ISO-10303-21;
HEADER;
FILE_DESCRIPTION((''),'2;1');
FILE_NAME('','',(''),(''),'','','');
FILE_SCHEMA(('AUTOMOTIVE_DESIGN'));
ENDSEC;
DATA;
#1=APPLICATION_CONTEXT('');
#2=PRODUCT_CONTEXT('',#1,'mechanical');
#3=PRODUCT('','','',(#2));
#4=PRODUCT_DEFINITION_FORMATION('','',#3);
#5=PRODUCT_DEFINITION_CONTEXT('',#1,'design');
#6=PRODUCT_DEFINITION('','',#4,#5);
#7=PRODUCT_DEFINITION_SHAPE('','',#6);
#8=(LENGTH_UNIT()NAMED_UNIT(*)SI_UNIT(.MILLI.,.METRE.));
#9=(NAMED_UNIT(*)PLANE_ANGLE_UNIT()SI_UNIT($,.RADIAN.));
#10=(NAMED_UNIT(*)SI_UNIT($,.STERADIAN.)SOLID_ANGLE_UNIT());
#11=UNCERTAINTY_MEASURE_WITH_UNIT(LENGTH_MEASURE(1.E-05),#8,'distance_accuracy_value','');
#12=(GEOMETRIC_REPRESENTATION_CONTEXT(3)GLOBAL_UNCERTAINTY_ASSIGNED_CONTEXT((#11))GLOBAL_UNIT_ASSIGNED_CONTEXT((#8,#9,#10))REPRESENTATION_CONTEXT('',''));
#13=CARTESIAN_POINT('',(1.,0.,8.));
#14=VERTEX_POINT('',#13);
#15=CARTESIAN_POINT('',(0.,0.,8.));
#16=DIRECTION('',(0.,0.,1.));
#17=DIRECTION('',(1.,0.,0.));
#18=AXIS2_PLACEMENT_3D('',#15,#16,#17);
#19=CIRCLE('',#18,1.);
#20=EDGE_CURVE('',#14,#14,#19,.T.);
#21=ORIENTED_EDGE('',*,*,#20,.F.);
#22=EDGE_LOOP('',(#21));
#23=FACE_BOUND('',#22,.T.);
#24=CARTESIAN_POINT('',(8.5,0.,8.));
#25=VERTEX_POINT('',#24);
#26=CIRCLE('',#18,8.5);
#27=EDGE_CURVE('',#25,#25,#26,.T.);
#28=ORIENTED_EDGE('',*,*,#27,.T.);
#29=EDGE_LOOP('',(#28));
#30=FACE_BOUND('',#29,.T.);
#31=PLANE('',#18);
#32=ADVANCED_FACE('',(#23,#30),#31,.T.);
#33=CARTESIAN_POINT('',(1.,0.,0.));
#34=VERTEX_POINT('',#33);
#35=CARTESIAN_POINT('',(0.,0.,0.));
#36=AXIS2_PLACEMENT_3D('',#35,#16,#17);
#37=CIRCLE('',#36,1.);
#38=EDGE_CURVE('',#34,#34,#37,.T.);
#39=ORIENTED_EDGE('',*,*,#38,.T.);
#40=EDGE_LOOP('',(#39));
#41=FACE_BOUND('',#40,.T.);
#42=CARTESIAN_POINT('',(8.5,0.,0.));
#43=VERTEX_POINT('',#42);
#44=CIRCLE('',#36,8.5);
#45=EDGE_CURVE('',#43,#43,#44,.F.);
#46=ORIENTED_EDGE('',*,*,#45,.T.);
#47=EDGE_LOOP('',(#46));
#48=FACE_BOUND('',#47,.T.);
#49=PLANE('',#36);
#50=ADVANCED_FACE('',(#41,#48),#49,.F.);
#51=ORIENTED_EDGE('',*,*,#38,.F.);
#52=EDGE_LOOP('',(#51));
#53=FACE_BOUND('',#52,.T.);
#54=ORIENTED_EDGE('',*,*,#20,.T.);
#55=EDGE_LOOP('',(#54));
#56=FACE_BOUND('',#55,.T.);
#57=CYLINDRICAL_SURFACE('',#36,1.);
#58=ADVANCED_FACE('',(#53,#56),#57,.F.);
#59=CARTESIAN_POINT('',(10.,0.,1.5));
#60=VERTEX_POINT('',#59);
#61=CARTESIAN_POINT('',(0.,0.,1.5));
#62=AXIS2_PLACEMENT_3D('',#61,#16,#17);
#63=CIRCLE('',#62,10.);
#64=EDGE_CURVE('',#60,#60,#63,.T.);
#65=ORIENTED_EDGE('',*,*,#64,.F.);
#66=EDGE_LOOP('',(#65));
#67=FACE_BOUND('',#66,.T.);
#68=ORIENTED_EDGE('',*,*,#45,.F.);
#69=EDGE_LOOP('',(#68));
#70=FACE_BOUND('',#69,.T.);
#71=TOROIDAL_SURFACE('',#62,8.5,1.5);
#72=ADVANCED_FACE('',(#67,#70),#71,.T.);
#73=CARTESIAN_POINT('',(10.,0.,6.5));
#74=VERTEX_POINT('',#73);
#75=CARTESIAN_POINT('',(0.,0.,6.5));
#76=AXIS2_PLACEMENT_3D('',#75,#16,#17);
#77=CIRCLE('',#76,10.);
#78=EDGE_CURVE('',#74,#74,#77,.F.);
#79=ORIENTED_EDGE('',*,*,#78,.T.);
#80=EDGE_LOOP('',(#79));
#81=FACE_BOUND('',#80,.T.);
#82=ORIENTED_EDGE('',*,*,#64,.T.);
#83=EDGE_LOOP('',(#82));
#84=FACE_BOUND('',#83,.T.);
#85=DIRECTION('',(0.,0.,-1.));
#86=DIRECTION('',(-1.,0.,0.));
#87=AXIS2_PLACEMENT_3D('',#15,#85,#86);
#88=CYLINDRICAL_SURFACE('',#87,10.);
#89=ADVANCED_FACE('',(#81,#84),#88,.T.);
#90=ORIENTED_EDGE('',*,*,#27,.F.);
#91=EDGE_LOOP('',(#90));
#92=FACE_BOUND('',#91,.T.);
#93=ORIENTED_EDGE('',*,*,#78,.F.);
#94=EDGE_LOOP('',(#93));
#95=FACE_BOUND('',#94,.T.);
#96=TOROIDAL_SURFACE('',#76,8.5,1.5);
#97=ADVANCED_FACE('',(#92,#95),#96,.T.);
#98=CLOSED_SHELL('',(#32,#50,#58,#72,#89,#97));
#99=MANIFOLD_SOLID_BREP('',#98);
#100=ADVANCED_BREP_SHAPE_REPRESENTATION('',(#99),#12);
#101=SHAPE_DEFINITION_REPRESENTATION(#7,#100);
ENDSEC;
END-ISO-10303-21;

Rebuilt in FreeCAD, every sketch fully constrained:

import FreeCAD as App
import Part
import Sketcher
from FreeCAD import Vector
Q = App.Units.Quantity


def edges_at(feature, points):
    """Names of the edges that pass closest to the given points."""
    edges = feature.Shape.Edges
    near = lambda p: min(range(len(edges)), key=lambda i: edges[i].distToShape(Part.Vertex(*p))[0])
    return sorted({f"Edge{near(p) + 1}" for p in points})

doc = App.newDocument("Part")
body = doc.addObject("PartDesign::Body", "Body")

sketch1 = body.newObject("Sketcher::SketchObject", "Sketch")
sketch1.AttachmentSupport = (doc.getObject("XY_Plane"), [""])
sketch1.MapMode = "FlatFace"
sketch1.addGeometry(Part.Circle(Vector(0, 0, 0), Vector(0, 0, 1), 10), False)
sketch1.addConstraint(Sketcher.Constraint("Coincident", 0, 3, -1, 1))
sketch1.addConstraint(Sketcher.Constraint("Diameter", 0, Q("20 mm")))
pad1 = body.newObject("PartDesign::Pad", "Pad")
pad1.Profile = sketch1
pad1.Length = 8
doc.recompute()

fillet = body.newObject("PartDesign::Fillet", "Fillet")
fillet.Base = (pad1, edges_at(pad1, [(-10, 0, 0), (-10, 0, 8)]))
fillet.Radius = 1.5

sketch2 = body.newObject("Sketcher::SketchObject", "Sketch001")
sketch2.AttachmentSupport = (doc.getObject("XY_Plane"), [""])
sketch2.MapMode = "FlatFace"
sketch2.AttachmentOffset = App.Placement(Vector(0, 0, 8), App.Rotation())
sketch2.addGeometry(Part.Circle(Vector(0, 0, 0), Vector(0, 0, 1), 1), False)
sketch2.addConstraint(Sketcher.Constraint("Coincident", 0, 3, -1, 1))
sketch2.addConstraint(Sketcher.Constraint("Diameter", 0, Q("2 mm")))
pocket1 = body.newObject("PartDesign::Pocket", "Pocket")
pocket1.Profile = sketch2
pocket1.Type = "ThroughAll"

doc.recompute()
